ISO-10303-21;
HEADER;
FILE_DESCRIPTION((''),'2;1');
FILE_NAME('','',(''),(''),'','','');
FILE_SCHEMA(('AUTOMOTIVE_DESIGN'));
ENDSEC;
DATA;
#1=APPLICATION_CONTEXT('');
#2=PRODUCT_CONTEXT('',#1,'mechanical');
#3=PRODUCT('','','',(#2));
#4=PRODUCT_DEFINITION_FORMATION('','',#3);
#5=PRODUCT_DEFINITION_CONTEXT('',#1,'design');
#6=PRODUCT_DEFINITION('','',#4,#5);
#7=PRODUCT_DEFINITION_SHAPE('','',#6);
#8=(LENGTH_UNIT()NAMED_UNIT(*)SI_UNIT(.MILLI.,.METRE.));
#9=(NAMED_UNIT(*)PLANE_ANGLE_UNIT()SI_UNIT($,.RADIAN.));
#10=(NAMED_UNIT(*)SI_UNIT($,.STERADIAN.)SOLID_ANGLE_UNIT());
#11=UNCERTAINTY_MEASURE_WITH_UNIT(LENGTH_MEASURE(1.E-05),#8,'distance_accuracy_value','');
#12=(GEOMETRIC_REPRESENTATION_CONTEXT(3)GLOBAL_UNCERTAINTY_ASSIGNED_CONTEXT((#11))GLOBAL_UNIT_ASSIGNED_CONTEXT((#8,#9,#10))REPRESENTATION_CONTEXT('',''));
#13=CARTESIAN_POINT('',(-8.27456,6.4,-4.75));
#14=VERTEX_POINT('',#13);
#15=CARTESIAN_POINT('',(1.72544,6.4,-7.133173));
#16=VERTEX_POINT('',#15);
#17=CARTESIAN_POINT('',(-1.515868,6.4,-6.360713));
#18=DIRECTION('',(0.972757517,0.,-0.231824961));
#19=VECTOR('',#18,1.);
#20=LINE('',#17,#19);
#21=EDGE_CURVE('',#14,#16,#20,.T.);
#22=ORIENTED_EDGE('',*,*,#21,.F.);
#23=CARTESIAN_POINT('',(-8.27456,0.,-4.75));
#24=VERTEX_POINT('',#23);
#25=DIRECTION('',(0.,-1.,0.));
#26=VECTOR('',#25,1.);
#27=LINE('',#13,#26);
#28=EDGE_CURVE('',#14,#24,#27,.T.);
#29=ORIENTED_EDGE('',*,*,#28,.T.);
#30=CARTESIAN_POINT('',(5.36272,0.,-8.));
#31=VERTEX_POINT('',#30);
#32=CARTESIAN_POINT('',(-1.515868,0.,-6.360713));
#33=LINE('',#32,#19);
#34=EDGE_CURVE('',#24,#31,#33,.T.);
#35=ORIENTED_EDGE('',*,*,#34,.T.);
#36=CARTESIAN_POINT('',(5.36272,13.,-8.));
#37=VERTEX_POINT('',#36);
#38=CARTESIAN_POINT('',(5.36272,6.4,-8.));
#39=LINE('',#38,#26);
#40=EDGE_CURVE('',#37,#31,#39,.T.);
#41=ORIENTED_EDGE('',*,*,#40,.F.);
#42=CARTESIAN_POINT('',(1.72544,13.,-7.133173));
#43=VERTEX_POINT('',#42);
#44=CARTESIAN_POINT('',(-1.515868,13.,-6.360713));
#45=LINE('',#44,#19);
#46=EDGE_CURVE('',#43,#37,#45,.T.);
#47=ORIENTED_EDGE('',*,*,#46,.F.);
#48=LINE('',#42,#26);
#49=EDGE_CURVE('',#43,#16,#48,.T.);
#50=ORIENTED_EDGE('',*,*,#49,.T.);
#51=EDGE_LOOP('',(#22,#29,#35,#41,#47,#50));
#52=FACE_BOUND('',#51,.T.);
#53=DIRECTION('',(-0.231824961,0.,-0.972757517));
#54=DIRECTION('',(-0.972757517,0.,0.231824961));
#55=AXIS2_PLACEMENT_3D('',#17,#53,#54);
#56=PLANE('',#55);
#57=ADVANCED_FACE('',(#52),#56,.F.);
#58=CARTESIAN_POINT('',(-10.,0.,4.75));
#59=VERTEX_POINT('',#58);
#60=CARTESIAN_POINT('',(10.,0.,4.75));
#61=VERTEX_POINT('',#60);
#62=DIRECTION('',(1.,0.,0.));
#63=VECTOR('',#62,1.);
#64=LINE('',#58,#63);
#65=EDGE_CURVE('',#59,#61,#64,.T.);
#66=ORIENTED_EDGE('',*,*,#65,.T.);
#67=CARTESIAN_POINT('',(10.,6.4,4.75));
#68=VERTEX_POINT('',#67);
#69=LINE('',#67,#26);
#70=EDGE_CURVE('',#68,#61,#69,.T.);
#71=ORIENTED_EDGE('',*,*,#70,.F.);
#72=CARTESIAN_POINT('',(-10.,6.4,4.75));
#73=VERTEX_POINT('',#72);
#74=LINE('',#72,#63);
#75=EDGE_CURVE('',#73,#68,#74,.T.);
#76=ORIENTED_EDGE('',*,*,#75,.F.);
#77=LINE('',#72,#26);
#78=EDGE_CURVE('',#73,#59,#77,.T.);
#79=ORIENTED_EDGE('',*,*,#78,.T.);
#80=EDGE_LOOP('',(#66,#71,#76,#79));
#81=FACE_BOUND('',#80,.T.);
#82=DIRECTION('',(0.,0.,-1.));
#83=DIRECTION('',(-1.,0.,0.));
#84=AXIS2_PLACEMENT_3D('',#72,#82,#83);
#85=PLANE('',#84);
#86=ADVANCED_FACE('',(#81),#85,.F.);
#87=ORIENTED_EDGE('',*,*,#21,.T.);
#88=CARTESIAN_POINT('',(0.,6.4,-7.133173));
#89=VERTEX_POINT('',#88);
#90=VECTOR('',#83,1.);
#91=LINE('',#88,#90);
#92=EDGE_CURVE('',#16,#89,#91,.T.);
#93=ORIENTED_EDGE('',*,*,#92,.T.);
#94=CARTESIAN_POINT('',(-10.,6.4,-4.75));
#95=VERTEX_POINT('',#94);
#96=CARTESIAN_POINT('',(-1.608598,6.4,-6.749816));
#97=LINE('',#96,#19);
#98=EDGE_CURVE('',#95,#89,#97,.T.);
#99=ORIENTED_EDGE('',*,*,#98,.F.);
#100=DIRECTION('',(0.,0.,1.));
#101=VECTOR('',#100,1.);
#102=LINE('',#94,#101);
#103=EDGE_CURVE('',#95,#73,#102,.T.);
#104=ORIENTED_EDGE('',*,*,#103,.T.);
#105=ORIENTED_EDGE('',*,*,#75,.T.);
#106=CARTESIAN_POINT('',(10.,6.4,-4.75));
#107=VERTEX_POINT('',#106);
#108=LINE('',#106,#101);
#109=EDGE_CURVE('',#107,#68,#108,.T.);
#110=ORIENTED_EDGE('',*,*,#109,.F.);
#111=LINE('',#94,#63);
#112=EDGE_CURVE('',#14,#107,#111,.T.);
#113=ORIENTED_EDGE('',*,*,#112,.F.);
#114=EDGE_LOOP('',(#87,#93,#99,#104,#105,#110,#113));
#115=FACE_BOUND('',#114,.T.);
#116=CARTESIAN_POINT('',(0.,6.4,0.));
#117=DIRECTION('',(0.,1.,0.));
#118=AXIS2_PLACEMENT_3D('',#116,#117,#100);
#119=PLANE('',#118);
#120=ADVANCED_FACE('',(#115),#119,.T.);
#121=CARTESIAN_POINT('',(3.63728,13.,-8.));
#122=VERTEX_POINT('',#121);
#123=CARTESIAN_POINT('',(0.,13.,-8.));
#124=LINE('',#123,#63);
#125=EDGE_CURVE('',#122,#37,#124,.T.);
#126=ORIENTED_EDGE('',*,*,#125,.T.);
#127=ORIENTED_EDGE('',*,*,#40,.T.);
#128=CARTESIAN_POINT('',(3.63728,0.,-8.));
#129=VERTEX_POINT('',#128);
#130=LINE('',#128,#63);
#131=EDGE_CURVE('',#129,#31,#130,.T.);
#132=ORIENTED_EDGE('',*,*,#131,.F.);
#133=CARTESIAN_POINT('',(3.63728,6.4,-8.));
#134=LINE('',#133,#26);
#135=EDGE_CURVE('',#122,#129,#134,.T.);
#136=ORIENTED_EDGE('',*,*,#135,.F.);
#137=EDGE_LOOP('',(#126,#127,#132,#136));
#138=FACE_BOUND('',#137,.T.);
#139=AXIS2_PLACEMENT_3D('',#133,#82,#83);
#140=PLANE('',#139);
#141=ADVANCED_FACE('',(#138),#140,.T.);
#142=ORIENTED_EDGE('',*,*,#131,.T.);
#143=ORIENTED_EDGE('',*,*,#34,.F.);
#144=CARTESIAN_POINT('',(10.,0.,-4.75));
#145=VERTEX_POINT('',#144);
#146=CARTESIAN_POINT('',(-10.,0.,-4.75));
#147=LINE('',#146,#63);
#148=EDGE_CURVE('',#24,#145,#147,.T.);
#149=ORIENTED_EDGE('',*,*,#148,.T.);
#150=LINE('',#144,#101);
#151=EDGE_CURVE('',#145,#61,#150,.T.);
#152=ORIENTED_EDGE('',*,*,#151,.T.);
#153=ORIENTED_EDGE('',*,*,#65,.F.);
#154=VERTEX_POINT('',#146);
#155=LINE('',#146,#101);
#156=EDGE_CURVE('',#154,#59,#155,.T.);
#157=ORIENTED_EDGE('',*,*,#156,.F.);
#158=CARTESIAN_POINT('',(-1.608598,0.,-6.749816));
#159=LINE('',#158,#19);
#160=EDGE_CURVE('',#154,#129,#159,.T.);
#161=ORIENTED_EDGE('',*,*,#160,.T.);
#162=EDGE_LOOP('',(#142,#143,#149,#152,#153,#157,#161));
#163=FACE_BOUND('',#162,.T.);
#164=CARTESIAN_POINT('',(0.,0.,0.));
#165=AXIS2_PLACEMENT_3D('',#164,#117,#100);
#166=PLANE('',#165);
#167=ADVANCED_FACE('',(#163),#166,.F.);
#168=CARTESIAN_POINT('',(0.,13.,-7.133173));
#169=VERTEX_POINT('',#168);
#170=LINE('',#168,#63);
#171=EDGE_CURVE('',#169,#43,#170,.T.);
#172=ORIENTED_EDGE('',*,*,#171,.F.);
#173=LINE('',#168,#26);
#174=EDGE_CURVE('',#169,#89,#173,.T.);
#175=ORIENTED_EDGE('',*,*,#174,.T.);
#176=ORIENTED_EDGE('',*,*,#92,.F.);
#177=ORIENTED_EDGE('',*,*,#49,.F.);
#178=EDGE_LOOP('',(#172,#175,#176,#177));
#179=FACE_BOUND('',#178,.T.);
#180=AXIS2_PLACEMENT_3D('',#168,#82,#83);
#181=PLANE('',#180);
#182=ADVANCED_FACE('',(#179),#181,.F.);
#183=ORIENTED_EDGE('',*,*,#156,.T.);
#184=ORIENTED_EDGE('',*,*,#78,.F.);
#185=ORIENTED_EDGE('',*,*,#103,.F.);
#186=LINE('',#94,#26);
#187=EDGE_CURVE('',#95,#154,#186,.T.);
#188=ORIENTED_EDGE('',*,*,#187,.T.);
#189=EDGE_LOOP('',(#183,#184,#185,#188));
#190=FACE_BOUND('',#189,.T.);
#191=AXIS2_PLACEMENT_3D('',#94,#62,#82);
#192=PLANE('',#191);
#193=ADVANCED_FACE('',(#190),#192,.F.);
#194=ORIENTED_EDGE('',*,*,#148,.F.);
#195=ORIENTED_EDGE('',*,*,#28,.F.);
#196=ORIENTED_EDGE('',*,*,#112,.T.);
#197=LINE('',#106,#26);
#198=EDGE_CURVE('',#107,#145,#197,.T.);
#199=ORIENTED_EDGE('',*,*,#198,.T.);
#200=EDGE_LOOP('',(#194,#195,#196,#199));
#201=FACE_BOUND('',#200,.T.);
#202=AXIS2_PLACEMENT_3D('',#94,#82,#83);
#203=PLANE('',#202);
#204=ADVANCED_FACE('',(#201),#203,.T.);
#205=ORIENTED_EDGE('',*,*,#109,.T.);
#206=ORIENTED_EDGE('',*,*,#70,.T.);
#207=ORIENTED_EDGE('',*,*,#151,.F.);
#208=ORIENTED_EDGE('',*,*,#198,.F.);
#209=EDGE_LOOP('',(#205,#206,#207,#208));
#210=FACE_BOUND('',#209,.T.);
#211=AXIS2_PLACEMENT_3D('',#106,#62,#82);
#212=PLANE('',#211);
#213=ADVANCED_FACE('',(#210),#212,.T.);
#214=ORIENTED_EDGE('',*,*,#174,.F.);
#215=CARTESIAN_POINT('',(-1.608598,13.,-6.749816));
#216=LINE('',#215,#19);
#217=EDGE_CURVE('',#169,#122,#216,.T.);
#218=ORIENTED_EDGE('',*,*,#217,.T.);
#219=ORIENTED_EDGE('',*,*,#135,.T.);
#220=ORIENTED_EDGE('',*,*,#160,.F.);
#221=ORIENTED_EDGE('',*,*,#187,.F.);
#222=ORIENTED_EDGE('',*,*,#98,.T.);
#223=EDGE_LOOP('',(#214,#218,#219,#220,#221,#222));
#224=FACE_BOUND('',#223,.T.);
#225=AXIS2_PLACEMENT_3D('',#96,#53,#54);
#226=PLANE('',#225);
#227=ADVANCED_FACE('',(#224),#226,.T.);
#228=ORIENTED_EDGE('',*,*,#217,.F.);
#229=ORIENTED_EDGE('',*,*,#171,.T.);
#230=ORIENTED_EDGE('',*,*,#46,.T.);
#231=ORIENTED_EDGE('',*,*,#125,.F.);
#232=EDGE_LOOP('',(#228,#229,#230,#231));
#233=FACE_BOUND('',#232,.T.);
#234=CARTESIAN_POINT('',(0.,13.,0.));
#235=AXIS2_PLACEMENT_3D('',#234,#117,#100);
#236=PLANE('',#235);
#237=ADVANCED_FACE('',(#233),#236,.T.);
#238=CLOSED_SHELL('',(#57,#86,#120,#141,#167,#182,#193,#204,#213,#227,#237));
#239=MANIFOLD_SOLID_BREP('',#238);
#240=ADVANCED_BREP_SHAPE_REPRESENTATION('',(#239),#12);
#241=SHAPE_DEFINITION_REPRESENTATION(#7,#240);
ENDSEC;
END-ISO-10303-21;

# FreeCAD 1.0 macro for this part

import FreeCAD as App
import Part
import Sketcher
Q = App.Units.Quantity

doc = App.newDocument("Part")
body = doc.addObject("PartDesign::Body", "Body")

# Sketch on XZ plane
sketch1 = body.newObject("Sketcher::SketchObject", "Sketch")
sketch1.AttachmentSupport = (doc.getObject("XZ_Plane"), [""])
sketch1.MapMode = "FlatFace"
sketch1.addGeometry([
    Part.LineSegment(App.Vector(5.4, -8, 0), App.Vector(3.6, -8, 0)),  # 0
    Part.LineSegment(App.Vector(3.6, -8, 0), App.Vector(-10, -4.8, 0)),  # 1
    Part.LineSegment(App.Vector(-10, -4.8, 0), App.Vector(-10, 4.8, 0)),  # 2
    Part.LineSegment(App.Vector(-10, 4.8, 0), App.Vector(10, 4.8, 0)),  # 3
    Part.LineSegment(App.Vector(10, 4.8, 0), App.Vector(10, -4.8, 0)),  # 4
    Part.LineSegment(App.Vector(10, -4.8, 0), App.Vector(-8.3, -4.8, 0)),  # 5
    Part.LineSegment(App.Vector(-8.3, -4.8, 0), App.Vector(5.4, -8, 0)),  # 6
], False)
sketch1.addConstraint([
    Sketcher.Constraint("Coincident", 0, 2, 1, 1),
    Sketcher.Constraint("Coincident", 1, 2, 2, 1),
    Sketcher.Constraint("Coincident", 2, 2, 3, 1),
    Sketcher.Constraint("Coincident", 3, 2, 4, 1),
    Sketcher.Constraint("Coincident", 4, 2, 5, 1),
    Sketcher.Constraint("Coincident", 5, 2, 6, 1),
    Sketcher.Constraint("Coincident", 6, 2, 0, 1),
    Sketcher.Constraint("Horizontal", 0),
    Sketcher.Constraint("Vertical", 2),
    Sketcher.Constraint("Horizontal", 3),
    Sketcher.Constraint("Vertical", 4),
    Sketcher.Constraint("Horizontal", 5),
    Sketcher.Constraint("Symmetric", 1, 2, 3, 2, -1, 1),
    Sketcher.Constraint("Parallel", 1, 6),
    Sketcher.Constraint("Horizontal", 1, 2, 4, 2),
    Sketcher.Constraint("DistanceX", 3, 1, 3, 2, Q("20 mm")),
    Sketcher.Constraint("DistanceY", 2, 1, 2, 2, Q("9.5 mm")),
    Sketcher.Constraint("DistanceY", 0, 2, -1, 1, Q("8 mm")),
    Sketcher.Constraint("DistanceX", 0, 2, 0, 1, Q("1.72544 mm")),
    Sketcher.Constraint("DistanceX", -1, 1, 0, 2, Q("3.63728 mm")),
])
pad1 = body.newObject("PartDesign::Pad", "Pad")
pad1.Profile = sketch1
pad1.Length = 6.4
pad1.Reversed = True

# Sketch on XZ plane
sketch2 = body.newObject("Sketcher::SketchObject", "Sketch001")
sketch2.AttachmentSupport = (doc.getObject("XZ_Plane"), [""])
sketch2.MapMode = "FlatFace"
sketch2.addGeometry([
    Part.LineSegment(App.Vector(3.6, -8, 0), App.Vector(0, -7.1, 0)),
    Part.LineSegment(App.Vector(0, -7.1, 0), App.Vector(1.7, -7.1, 0)),
    Part.LineSegment(App.Vector(1.7, -7.1, 0), App.Vector(5.4, -8, 0)),
    Part.LineSegment(App.Vector(5.4, -8, 0), App.Vector(3.6, -8, 0)),
], False)
sketch2.addConstraint([
    Sketcher.Constraint("Coincident", 0, 2, 1, 1),
    Sketcher.Constraint("Coincident", 1, 2, 2, 1),
    Sketcher.Constraint("Coincident", 2, 2, 3, 1),
    Sketcher.Constraint("Coincident", 3, 2, 0, 1),
    Sketcher.Constraint("Horizontal", 1),
    Sketcher.Constraint("Horizontal", 3),
    Sketcher.Constraint("PointOnObject", 0, 2, -2),
    Sketcher.Constraint("Parallel", 0, 2),
    Sketcher.Constraint("DistanceY", 2, 2, -1, 1, Q("8 mm")),
    Sketcher.Constraint("DistanceX", 1, 1, 1, 2, Q("1.72544 mm")),
    Sketcher.Constraint("DistanceX", -1, 1, 2, 2, Q("5.36272 mm")),
    Sketcher.Constraint("Distance", 0, Q("3.739144 mm")),
])
pad2 = body.newObject("PartDesign::Pad", "Pad001")
pad2.Profile = sketch2
pad2.Length = 13
pad2.Reversed = True

doc.recompute()
